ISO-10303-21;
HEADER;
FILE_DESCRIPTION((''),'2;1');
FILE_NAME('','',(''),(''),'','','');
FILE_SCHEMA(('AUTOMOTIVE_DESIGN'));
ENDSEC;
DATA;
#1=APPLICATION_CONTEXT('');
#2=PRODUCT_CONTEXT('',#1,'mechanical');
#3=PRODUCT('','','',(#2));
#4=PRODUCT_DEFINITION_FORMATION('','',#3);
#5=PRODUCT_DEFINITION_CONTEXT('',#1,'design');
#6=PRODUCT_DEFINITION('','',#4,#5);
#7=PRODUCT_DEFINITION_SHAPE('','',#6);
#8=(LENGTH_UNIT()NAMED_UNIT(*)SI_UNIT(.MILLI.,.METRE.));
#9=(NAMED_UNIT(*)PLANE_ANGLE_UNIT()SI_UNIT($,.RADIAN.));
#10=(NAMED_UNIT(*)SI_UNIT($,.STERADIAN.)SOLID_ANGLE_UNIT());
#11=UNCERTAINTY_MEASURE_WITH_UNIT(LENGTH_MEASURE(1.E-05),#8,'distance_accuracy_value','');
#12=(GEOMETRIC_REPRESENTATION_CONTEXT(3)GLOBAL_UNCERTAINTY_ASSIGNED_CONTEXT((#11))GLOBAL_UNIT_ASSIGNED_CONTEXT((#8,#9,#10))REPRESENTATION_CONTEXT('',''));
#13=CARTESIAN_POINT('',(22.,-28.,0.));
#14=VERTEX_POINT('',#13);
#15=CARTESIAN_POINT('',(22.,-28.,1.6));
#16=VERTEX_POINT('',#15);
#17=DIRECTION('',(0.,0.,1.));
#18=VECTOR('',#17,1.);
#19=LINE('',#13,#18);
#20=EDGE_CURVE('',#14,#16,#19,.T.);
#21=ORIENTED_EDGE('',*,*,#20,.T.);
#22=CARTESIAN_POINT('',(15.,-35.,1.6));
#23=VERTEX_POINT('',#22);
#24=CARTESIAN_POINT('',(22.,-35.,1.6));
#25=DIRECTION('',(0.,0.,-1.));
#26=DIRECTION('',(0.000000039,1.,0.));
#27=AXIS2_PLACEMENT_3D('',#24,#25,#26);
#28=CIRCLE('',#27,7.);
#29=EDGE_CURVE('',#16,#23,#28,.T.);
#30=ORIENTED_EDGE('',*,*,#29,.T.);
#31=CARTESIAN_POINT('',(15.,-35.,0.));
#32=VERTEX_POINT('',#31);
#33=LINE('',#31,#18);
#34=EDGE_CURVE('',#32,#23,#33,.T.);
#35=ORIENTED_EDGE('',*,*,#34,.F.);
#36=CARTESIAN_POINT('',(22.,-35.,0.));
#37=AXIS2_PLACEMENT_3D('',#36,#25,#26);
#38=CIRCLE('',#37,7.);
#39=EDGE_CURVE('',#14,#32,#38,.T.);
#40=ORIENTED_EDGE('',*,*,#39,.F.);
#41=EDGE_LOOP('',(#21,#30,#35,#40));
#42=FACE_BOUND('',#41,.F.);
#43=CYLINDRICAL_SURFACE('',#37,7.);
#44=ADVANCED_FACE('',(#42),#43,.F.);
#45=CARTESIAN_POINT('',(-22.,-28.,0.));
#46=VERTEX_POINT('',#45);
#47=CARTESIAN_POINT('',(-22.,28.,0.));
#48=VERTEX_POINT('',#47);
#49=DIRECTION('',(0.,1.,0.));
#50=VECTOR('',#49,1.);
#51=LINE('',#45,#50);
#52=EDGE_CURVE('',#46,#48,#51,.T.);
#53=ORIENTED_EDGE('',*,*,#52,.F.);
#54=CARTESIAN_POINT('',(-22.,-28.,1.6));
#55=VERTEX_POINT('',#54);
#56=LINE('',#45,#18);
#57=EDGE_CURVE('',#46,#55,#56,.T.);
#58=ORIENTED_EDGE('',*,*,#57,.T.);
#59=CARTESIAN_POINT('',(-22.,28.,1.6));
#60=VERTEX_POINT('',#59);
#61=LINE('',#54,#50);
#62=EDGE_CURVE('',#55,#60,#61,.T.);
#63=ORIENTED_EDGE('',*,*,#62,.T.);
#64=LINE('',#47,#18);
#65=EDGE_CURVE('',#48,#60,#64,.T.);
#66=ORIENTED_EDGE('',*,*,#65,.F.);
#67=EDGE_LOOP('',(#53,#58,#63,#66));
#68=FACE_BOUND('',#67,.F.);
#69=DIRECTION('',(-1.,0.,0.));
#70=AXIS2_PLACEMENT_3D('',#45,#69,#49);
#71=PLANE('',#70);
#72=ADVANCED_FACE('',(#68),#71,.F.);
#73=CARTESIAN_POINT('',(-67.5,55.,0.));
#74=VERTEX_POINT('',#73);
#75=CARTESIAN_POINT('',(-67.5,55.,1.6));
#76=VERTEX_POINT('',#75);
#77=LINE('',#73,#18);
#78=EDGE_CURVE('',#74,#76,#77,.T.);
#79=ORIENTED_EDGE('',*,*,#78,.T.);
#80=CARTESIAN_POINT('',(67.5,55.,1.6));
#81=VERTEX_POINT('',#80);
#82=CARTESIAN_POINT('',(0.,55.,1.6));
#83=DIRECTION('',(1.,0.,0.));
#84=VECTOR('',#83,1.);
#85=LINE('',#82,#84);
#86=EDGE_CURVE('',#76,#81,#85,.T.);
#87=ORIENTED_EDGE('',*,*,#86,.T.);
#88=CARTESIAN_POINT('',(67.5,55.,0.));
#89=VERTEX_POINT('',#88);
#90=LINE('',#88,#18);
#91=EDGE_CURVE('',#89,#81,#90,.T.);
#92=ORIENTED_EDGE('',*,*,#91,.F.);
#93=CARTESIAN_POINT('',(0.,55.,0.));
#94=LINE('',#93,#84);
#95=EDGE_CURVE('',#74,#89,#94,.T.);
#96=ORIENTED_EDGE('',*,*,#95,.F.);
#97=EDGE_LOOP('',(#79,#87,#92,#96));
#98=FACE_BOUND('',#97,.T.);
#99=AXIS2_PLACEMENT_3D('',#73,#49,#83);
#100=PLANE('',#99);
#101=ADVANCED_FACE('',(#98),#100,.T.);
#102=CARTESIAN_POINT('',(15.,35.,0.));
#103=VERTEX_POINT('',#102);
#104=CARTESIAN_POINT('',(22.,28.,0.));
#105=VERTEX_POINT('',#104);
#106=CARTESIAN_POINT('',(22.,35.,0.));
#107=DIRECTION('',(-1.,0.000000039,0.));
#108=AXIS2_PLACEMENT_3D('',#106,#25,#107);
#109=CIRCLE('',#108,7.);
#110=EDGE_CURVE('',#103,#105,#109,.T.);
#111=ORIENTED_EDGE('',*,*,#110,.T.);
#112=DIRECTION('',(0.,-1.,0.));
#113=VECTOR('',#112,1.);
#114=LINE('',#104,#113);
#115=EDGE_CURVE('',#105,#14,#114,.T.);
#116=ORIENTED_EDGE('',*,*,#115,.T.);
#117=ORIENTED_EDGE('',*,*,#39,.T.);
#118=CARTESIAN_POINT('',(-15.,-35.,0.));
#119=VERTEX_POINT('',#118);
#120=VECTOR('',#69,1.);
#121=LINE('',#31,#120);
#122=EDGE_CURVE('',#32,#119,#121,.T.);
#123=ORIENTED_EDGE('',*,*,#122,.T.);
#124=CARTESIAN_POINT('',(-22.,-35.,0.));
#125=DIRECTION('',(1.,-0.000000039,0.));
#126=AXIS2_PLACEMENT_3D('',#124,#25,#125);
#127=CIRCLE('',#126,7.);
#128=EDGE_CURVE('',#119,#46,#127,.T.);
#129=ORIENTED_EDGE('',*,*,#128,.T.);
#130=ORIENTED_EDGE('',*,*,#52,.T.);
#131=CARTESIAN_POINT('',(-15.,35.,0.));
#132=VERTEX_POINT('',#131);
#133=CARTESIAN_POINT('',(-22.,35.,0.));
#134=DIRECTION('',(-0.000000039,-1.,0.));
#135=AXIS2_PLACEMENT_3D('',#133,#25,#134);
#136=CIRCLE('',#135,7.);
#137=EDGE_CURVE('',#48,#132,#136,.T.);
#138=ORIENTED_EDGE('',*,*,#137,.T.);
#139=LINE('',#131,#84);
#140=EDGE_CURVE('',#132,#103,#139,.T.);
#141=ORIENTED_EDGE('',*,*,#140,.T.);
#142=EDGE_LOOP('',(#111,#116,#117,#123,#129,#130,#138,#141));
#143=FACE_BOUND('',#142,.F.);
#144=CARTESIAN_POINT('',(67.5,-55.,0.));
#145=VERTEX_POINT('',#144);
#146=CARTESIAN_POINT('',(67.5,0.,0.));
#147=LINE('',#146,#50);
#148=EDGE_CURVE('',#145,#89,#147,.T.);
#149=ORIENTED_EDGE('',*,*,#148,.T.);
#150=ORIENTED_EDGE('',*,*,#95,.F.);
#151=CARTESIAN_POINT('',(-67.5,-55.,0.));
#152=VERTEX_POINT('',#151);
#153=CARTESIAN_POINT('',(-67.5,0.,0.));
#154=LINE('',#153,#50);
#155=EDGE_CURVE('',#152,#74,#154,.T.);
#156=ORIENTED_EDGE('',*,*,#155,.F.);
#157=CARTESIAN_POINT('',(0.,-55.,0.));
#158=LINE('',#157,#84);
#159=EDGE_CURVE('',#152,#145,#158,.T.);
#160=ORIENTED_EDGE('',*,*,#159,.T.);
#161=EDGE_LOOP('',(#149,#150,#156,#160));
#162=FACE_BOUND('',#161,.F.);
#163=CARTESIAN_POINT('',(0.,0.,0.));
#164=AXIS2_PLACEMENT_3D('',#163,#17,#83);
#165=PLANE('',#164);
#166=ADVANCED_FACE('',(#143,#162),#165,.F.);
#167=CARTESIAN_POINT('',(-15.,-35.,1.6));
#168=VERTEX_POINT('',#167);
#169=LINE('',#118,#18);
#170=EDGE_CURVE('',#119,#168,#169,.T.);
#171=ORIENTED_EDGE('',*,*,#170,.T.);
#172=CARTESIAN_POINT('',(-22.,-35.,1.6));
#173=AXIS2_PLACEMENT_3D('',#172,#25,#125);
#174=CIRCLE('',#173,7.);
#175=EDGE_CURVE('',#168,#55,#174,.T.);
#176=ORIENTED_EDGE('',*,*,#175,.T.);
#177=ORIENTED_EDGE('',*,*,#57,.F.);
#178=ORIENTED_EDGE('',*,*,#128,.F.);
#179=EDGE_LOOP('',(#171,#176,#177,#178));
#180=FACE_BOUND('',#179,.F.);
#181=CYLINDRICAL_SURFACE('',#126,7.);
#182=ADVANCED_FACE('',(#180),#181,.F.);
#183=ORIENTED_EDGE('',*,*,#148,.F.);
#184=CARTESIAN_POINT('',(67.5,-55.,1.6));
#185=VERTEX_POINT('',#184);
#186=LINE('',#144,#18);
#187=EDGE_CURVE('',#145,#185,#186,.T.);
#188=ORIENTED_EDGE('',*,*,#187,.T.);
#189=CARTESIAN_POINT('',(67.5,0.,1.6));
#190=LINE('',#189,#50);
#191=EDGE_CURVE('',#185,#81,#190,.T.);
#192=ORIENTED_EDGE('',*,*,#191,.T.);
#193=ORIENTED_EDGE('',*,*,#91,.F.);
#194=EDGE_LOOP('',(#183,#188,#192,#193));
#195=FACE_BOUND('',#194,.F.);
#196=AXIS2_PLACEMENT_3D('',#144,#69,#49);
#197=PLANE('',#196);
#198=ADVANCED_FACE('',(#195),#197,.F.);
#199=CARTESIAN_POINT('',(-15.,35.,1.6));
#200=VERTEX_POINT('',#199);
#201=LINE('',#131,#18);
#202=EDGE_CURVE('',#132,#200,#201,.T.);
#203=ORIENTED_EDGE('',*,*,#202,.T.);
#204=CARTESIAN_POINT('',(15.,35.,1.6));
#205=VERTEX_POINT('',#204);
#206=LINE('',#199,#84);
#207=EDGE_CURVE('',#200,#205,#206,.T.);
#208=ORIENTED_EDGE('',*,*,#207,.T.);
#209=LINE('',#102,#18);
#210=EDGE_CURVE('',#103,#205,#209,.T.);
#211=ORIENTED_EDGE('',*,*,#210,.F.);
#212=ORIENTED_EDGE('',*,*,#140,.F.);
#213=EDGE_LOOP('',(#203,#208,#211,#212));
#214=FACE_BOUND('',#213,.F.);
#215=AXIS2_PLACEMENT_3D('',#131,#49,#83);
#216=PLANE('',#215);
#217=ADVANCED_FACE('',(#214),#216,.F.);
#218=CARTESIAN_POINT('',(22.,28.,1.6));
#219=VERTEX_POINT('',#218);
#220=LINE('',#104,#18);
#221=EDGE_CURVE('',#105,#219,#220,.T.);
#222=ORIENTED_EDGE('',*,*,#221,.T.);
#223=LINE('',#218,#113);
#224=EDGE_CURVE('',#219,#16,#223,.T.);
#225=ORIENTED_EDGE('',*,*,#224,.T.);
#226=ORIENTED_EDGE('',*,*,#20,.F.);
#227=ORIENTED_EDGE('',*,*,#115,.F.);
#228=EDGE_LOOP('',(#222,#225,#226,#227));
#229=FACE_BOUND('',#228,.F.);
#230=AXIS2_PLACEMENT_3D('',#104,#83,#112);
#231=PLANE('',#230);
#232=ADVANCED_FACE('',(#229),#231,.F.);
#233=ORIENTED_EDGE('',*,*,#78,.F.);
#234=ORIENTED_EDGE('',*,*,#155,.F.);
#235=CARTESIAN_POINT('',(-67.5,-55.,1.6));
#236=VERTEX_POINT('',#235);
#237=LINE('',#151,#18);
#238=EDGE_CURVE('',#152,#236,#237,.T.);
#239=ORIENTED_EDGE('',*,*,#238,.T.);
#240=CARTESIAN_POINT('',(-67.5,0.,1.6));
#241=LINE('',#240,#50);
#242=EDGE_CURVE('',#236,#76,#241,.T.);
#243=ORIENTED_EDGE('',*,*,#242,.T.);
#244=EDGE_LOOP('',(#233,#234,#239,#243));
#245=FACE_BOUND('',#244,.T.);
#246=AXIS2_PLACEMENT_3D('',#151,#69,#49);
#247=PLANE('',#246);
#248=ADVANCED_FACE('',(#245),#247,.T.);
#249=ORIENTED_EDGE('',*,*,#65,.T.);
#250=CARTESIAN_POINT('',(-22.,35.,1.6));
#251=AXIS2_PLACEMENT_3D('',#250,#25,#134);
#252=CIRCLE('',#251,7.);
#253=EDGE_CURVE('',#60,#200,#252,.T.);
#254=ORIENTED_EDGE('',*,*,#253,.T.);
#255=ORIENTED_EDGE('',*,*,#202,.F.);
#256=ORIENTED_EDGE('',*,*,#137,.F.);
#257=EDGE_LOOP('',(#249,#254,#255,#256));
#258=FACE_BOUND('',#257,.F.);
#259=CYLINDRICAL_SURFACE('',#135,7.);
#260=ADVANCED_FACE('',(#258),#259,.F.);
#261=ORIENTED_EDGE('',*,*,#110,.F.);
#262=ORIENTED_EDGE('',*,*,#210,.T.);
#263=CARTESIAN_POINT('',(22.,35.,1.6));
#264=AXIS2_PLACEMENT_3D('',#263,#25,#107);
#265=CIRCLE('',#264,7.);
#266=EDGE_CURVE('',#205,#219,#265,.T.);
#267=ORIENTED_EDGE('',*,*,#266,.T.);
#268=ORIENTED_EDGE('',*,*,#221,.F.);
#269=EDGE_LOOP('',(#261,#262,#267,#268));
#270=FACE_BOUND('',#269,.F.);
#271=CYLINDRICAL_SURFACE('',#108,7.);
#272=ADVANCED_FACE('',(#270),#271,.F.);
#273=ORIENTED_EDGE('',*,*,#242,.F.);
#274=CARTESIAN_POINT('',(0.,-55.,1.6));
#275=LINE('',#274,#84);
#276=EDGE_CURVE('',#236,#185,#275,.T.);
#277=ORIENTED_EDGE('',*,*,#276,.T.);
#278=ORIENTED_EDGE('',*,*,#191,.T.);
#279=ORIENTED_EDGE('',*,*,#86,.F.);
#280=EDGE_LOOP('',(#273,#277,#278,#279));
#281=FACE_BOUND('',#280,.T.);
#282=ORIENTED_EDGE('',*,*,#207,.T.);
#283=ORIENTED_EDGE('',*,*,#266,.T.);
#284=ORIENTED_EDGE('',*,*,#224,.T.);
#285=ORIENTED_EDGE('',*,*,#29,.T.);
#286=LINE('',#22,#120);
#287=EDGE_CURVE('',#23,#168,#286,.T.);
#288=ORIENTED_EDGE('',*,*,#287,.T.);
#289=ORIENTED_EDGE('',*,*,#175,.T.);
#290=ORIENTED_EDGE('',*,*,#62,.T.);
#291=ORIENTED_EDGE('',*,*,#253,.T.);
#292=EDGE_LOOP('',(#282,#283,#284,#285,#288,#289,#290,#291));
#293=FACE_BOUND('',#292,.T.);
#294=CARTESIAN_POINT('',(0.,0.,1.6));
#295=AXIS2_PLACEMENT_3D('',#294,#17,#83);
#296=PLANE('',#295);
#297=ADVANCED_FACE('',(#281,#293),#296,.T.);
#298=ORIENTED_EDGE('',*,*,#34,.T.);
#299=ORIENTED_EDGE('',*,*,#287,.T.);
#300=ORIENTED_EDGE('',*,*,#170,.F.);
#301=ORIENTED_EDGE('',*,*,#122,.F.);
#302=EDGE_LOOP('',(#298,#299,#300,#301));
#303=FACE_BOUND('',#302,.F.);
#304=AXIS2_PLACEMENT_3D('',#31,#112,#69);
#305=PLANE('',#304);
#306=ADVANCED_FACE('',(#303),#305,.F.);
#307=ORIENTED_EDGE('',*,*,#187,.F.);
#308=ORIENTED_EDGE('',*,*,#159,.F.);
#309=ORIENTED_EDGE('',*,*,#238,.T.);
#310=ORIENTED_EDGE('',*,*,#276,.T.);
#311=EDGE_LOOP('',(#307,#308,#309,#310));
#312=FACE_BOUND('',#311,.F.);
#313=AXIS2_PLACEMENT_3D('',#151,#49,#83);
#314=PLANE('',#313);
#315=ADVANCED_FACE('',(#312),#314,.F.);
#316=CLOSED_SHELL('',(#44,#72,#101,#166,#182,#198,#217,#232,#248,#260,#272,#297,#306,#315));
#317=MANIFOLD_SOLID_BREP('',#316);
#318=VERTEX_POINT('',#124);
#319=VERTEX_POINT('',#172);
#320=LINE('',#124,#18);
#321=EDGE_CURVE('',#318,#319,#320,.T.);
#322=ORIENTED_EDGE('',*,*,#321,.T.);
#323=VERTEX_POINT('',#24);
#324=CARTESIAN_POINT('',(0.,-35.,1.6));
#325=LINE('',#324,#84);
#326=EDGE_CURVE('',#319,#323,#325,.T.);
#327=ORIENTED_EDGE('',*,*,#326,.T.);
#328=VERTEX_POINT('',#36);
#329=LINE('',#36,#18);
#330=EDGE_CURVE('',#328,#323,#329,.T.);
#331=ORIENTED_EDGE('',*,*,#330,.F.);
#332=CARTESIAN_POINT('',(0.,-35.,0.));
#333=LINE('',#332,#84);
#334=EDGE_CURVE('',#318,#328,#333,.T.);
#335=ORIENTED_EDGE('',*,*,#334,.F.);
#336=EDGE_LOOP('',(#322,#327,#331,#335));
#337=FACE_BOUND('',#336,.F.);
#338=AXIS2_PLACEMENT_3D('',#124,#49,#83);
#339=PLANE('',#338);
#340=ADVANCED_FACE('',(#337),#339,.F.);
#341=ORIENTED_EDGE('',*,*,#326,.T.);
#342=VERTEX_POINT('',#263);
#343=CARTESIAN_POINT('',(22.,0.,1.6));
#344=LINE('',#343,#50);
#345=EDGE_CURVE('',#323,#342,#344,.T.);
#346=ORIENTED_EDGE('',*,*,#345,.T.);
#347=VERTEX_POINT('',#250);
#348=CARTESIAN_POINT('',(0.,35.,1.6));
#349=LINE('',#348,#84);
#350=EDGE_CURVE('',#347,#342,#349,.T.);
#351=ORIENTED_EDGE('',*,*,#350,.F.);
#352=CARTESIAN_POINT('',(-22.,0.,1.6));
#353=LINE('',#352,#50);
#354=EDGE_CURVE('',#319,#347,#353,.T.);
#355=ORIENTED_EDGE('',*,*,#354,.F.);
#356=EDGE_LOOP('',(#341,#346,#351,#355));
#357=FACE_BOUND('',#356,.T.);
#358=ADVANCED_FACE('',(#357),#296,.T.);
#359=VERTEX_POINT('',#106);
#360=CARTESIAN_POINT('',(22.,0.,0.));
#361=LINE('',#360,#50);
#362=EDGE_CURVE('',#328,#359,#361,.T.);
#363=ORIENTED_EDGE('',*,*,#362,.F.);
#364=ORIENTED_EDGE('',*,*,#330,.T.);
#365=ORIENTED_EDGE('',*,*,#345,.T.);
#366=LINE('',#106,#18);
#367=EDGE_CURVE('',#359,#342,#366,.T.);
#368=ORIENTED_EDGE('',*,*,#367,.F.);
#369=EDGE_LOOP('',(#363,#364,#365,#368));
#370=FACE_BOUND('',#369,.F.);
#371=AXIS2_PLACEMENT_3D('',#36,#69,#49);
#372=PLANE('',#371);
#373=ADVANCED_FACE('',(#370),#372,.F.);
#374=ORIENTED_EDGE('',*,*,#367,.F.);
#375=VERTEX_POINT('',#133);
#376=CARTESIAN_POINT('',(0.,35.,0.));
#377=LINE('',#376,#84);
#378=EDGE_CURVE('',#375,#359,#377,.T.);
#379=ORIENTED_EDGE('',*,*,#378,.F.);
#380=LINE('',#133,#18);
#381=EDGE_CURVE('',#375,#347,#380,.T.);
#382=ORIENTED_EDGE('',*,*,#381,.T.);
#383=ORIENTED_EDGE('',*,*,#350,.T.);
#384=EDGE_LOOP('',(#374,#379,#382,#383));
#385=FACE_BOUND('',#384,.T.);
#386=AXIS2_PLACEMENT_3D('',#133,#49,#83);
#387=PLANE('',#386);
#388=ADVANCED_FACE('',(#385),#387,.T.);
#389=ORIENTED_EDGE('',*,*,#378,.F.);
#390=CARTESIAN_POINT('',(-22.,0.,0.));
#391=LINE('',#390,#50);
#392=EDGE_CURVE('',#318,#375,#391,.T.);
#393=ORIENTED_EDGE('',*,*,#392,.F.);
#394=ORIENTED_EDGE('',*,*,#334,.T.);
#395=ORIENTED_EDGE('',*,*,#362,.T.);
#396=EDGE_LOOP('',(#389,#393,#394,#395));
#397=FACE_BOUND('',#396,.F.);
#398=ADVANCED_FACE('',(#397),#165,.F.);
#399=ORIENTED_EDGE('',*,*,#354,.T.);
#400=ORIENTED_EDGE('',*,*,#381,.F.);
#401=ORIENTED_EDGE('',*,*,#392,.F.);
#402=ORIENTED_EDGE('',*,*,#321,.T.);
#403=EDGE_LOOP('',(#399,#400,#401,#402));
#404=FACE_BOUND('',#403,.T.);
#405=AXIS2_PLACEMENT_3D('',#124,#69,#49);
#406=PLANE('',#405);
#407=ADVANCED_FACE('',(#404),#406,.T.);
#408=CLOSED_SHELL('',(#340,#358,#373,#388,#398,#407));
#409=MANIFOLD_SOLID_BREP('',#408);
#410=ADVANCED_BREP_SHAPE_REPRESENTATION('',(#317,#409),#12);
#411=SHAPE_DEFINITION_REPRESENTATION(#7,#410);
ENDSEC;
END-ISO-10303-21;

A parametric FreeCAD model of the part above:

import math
import FreeCAD as App
import Part
import Sketcher

V = App.Vector
Q = App.Units.Quantity

doc = App.newDocument("Part")
body = doc.addObject("PartDesign::Body", "Body")

sketch1 = body.newObject("Sketcher::SketchObject", "Sketch")
sketch1.AttachmentSupport = (doc.getObject("XY_Plane"), [""])
sketch1.MapMode = "FlatFace"
sketch1.addGeometry([
    Part.LineSegment(V(-22, 35, 0), V(-22, -35, 0)),
    Part.LineSegment(V(-22, -35, 0), V(22, -35, 0)),
    Part.LineSegment(V(22, -35, 0), V(22, 35, 0)),
    Part.LineSegment(V(22, 35, 0), V(-22, 35, 0)),
], False)
sketch1.addConstraint([
    Sketcher.Constraint("Coincident", 0, 2, 1, 1),
    Sketcher.Constraint("Coincident", 1, 2, 2, 1),
    Sketcher.Constraint("Coincident", 2, 2, 3, 1),
    Sketcher.Constraint("Coincident", 3, 2, 0, 1),
    Sketcher.Constraint("Vertical", 0),
    Sketcher.Constraint("Horizontal", 1),
    Sketcher.Constraint("Vertical", 2),
    Sketcher.Constraint("Horizontal", 3),
    Sketcher.Constraint("Symmetric", 0, 2, 2, 2, -1, 1),
    Sketcher.Constraint("DistanceX", 1, 1, 1, 2, Q("44 mm")),
    Sketcher.Constraint("DistanceY", 0, 2, 0, 1, Q("70 mm")),
])
pad1 = body.newObject("PartDesign::Pad", "Pad")
pad1.Profile = sketch1
pad1.Length = 1.6
body2 = doc.addObject("PartDesign::Body", "Body001")

sketch2 = body2.newObject("Sketcher::SketchObject", "Sketch001")
sketch2.AttachmentSupport = (doc.getObject("XY_Plane001"), [""])
sketch2.MapMode = "FlatFace"
sketch2.addGeometry([
    Part.LineSegment(V(-67.5, 55, 0), V(-67.5, -55, 0)),
    Part.LineSegment(V(-67.5, -55, 0), V(67.5, -55, 0)),
    Part.LineSegment(V(67.5, -55, 0), V(67.5, 55, 0)),
    Part.LineSegment(V(67.5, 55, 0), V(-67.5, 55, 0)),
    Part.ArcOfCircle(Part.Circle(V(-22, -35, 0), V(0, 0, 1), 7), math.radians(90.000002), math.radians(359.999998)),
    Part.LineSegment(V(-22, -28, 0), V(-22, 28, 0)),
    Part.ArcOfCircle(Part.Circle(V(-22, 35, 0), V(0, 0, 1), 7), math.radians(0.000002), math.radians(269.999998)),
    Part.LineSegment(V(-15, 35, 0), V(15, 35, 0)),
    Part.ArcOfCircle(Part.Circle(V(22, 35, 0), V(0, 0, 1), 7), math.radians(-89.999998), math.radians(179.999998)),
    Part.LineSegment(V(22, 28, 0), V(22, -28, 0)),
    Part.ArcOfCircle(Part.Circle(V(22, -35, 0), V(0, 0, 1), 7), math.radians(-179.999998), math.radians(89.999998)),
    Part.LineSegment(V(15, -35, 0), V(-15, -35, 0)),
], False)
sketch2.addConstraint([
    Sketcher.Constraint("Coincident", 0, 2, 1, 1),
    Sketcher.Constraint("Coincident", 1, 2, 2, 1),
    Sketcher.Constraint("Coincident", 2, 2, 3, 1),
    Sketcher.Constraint("Coincident", 3, 2, 0, 1),
    Sketcher.Constraint("Coincident", 4, 1, 5, 1),
    Sketcher.Constraint("Coincident", 5, 2, 6, 2),
    Sketcher.Constraint("Coincident", 6, 1, 7, 1),
    Sketcher.Constraint("Coincident", 7, 2, 8, 2),
    Sketcher.Constraint("Coincident", 8, 1, 9, 1),
    Sketcher.Constraint("Coincident", 9, 2, 10, 2),
    Sketcher.Constraint("Coincident", 10, 1, 11, 1),
    Sketcher.Constraint("Coincident", 11, 2, 4, 2),
    Sketcher.Constraint("Vertical", 0),
    Sketcher.Constraint("Horizontal", 1),
    Sketcher.Constraint("Vertical", 2),
    Sketcher.Constraint("Horizontal", 3),
    Sketcher.Constraint("Vertical", 5),
    Sketcher.Constraint("Horizontal", 7),
    Sketcher.Constraint("Vertical", 9),
    Sketcher.Constraint("Horizontal", 11),
    Sketcher.Constraint("Equal", 4, 6),
    Sketcher.Constraint("Equal", 6, 8),
    Sketcher.Constraint("Equal", 8, 10),
    Sketcher.Constraint("Symmetric", 4, 3, 8, 3, -1, 1),
    Sketcher.Constraint("Symmetric", 6, 3, 10, 3, -1, 1),
    Sketcher.Constraint("Symmetric", 0, 2, 2, 2, -1, 1),
    Sketcher.Constraint("Symmetric", 6, 3, 8, 3, -2),
    Sketcher.Constraint("Horizontal", 8, 3, 6, 1),
    Sketcher.Constraint("Horizontal", 4, 3, 10, 1),
    Sketcher.Constraint("Vertical", 6, 3, 4, 1),
    Sketcher.Constraint("Vertical", 10, 3, 8, 1),
    Sketcher.Constraint("Radius", 4, Q("7 mm")),
    Sketcher.Constraint("DistanceX", 1, 1, 1, 2, Q("135 mm")),
    Sketcher.Constraint("DistanceX", 7, 1, 7, 2, Q("30 mm")),
    Sketcher.Constraint("DistanceY", 0, 2, 0, 1, Q("110 mm")),
    Sketcher.Constraint("DistanceY", 5, 1, 5, 2, Q("56 mm")),
])
pad2 = body2.newObject("PartDesign::Pad", "Pad001")
pad2.Profile = sketch2
pad2.Length = 1.6

doc.recompute()
